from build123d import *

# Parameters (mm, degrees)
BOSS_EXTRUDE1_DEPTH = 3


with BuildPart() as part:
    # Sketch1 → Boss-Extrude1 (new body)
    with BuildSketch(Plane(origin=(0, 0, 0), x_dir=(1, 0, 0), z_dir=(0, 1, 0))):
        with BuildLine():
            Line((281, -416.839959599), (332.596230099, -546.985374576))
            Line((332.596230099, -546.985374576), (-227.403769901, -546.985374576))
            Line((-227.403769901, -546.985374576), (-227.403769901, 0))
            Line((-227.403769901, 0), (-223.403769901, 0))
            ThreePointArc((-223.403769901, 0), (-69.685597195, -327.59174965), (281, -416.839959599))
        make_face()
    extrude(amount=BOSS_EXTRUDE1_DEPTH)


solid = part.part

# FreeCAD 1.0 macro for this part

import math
import FreeCAD as App
import Part
import Sketcher

V = App.Vector
Q = App.Units.Quantity

doc = App.newDocument("Part")
params = doc.addObject("Spreadsheet::Sheet", "Params")
for row, (alias, value) in enumerate([
    ("sketch1_radius", "423.5 mm"),
    ("sketch1_width", "4 mm"),
    ("sketch1_width2", "560 mm"),
    ("sketch1_length", "140 mm"),
    ("pad1_length", "3 mm"),
], start=1):
    params.set(f"A{row}", alias)
    params.set(f"B{row}", "=" + value)
    params.setAlias(f"B{row}", alias)

body = doc.addObject("PartDesign::Body", "Body")

# Sketch on XZ plane
sketch1 = body.newObject("Sketcher::SketchObject", "Sketch")
sketch1.AttachmentSupport = (doc.getObject("XZ_Plane"), [""])
sketch1.MapMode = "FlatFace"
sketch1.addGeometry([
    Part.LineSegment(V(332.59623, 546.985375, 0), V(281, 416.83996, 0)),  # 0
    Part.ArcOfCircle(Part.Circle(V(200.094696, 1.139849, 0), V(0, 0, 1), 423.5), math.radians(78.986535), math.radians(180.154212)),  # 1
    Part.LineSegment(V(-223.40377, 0, 0), V(-227.40377, 0, 0)),  # 2
    Part.LineSegment(V(-227.40377, 0, 0), V(-227.40377, 546.985375, 0)),  # 3
    Part.LineSegment(V(-227.40377, 546.985375, 0), V(332.59623, 546.985375, 0)),  # 4
], False)
sketch1.addConstraint([
    Sketcher.Constraint("Coincident", 0, 2, 1, 1),
    Sketcher.Constraint("Coincident", 1, 2, 2, 1),
    Sketcher.Constraint("Coincident", 2, 2, 3, 1),
    Sketcher.Constraint("Coincident", 3, 2, 4, 1),
    Sketcher.Constraint("Coincident", 4, 2, 0, 1),
    Sketcher.Constraint("Horizontal", 2),
    Sketcher.Constraint("Vertical", 3),
    Sketcher.Constraint("Horizontal", 4),
    Sketcher.Constraint("PointOnObject", 2, 2, -1),
    Sketcher.Constraint("Radius", 1, Q("423.5 mm")),
    Sketcher.Constraint("DistanceX", 2, 2, 2, 1, Q("4 mm")),
    Sketcher.Constraint("DistanceX", 4, 1, 4, 2, Q("560 mm")),
    Sketcher.Constraint("Distance", 0, Q("140 mm")),
    Sketcher.Constraint("DistanceX", -1, 1, 0, 2, Q("281 mm")),
    Sketcher.Constraint("DistanceY", 3, 1, 3, 2, Q("546.985375 mm")),
    Sketcher.Constraint("DistanceY", -1, 1, 1, 3, Q("1.139849 mm")),
])
sketch1.setExpression("Constraints[9]", "Params.sketch1_radius")
sketch1.setExpression("Constraints[10]", "Params.sketch1_width")
sketch1.setExpression("Constraints[11]", "Params.sketch1_width2")
sketch1.setExpression("Constraints[12]", "Params.sketch1_length")
pad1 = body.newObject("PartDesign::Pad", "Pad")
pad1.Profile = sketch1
pad1.setExpression("Length", "Params.pad1_length")
pad1.Reversed = True

doc.recompute()
